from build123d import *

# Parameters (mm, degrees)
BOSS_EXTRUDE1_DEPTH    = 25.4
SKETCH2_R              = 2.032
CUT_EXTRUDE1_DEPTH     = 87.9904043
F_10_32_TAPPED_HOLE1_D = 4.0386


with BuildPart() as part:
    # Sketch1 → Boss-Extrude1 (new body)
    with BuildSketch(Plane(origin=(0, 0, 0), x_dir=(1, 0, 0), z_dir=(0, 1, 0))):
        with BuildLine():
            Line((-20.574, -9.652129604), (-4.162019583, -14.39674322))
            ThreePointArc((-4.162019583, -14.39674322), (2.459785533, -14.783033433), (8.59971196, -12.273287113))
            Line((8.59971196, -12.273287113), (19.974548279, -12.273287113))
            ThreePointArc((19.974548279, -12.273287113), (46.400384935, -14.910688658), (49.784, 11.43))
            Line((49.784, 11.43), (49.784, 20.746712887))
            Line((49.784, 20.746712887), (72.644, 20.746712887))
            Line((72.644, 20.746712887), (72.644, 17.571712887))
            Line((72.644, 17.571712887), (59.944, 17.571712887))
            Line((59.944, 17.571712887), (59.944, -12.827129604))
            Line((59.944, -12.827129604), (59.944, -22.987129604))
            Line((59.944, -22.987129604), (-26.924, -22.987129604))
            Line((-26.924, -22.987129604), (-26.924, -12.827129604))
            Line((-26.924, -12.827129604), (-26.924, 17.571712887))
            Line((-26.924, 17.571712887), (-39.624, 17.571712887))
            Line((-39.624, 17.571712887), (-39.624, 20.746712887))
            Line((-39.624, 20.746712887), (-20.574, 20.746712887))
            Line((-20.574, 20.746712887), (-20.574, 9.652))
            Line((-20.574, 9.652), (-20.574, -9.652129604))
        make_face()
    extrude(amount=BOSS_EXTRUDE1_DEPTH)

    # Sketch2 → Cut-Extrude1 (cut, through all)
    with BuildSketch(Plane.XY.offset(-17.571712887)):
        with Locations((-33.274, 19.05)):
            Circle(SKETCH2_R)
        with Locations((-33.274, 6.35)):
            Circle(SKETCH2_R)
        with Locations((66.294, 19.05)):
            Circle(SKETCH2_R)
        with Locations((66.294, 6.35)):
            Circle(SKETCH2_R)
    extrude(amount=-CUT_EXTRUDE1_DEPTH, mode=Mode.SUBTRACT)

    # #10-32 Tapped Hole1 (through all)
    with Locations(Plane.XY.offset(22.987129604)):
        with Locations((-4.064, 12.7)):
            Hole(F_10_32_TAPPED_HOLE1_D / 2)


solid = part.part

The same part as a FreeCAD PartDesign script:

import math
import FreeCAD as App
import Part
import Sketcher

V = App.Vector
Q = App.Units.Quantity

doc = App.newDocument("Part")
body = doc.addObject("PartDesign::Body", "Body")

# Sketch on XZ plane
sketch1 = body.newObject("Sketcher::SketchObject", "Sketch")
sketch1.AttachmentSupport = (doc.getObject("XZ_Plane"), [""])
sketch1.MapMode = "FlatFace"
sketch1.addGeometry(Part.LineSegment(V(-4.16202, 14.396743, 0), V(-20.574, 9.65213, 0)), False)
sketch1.addGeometry(Part.LineSegment(V(-20.574, 9.65213, 0), V(-20.574, -20.746713, 0)), False)
sketch1.addGeometry(Part.LineSegment(V(-20.574, -20.746713, 0), V(-39.624, -20.746713, 0)), False)
sketch1.addGeometry(Part.LineSegment(V(-39.624, -20.746713, 0), V(-39.624, -17.571713, 0)), False)
sketch1.addGeometry(Part.LineSegment(V(-39.624, -17.571713, 0), V(-26.924, -17.571713, 0)), False)
sketch1.addGeometry(Part.LineSegment(V(-26.924, -17.571713, 0), V(-26.924, 22.98713, 0)), False)
sketch1.addGeometry(Part.LineSegment(V(-26.924, 22.98713, 0), V(59.944, 22.98713, 0)), False)
sketch1.addGeometry(Part.LineSegment(V(59.944, 22.98713, 0), V(59.944, -17.571713, 0)), False)
sketch1.addGeometry(Part.LineSegment(V(59.944, -17.571713, 0), V(72.644, -17.571713, 0)), False)
sketch1.addGeometry(Part.LineSegment(V(72.644, -17.571713, 0), V(72.644, -20.746713, 0)), False)
sketch1.addGeometry(Part.LineSegment(V(72.644, -20.746713, 0), V(49.784, -20.746713, 0)), False)
sketch1.addGeometry(Part.LineSegment(V(49.784, -20.746713, 0), V(49.784, -11.43, 0)), False)
sketch1.addGeometry(Part.ArcOfCircle(Part.Circle(V(34.544, 0, 0), V(0, 0, 1), 19.05), math.radians(-36.869898), math.radians(139.889257)), False)
sketch1.addGeometry(Part.LineSegment(V(19.974548, 12.273287, 0), V(8.599712, 12.273287, 0)), False)
sketch1.addGeometry(Part.ArcOfCircle(Part.Circle(V(0, 0, 0), V(0, 0, 1), 14.986281), math.radians(54.981636), math.radians(106.124292)), False)
sketch1.addConstraint(Sketcher.Constraint("Coincident", 0, 2, 1, 1))
sketch1.addConstraint(Sketcher.Constraint("Coincident", 1, 2, 2, 1))
sketch1.addConstraint(Sketcher.Constraint("Coincident", 2, 2, 3, 1))
sketch1.addConstraint(Sketcher.Constraint("Coincident", 3, 2, 4, 1))
sketch1.addConstraint(Sketcher.Constraint("Coincident", 4, 2, 5, 1))
sketch1.addConstraint(Sketcher.Constraint("Coincident", 5, 2, 6, 1))
sketch1.addConstraint(Sketcher.Constraint("Coincident", 6, 2, 7, 1))
sketch1.addConstraint(Sketcher.Constraint("Coincident", 7, 2, 8, 1))
sketch1.addConstraint(Sketcher.Constraint("Coincident", 8, 2, 9, 1))
sketch1.addConstraint(Sketcher.Constraint("Coincident", 9, 2, 10, 1))
sketch1.addConstraint(Sketcher.Constraint("Coincident", 10, 2, 11, 1))
sketch1.addConstraint(Sketcher.Constraint("Coincident", 11, 2, 12, 1))
sketch1.addConstraint(Sketcher.Constraint("Coincident", 12, 2, 13, 1))
sketch1.addConstraint(Sketcher.Constraint("Coincident", 13, 2, 14, 1))
sketch1.addConstraint(Sketcher.Constraint("Tangent", 14, 2, 0, 1))
sketch1.addConstraint(Sketcher.Constraint("Vertical", 1))
sketch1.addConstraint(Sketcher.Constraint("Horizontal", 2))
sketch1.addConstraint(Sketcher.Constraint("Vertical", 3))
sketch1.addConstraint(Sketcher.Constraint("Horizontal", 4))
sketch1.addConstraint(Sketcher.Constraint("Vertical", 5))
sketch1.addConstraint(Sketcher.Constraint("Horizontal", 6))
sketch1.addConstraint(Sketcher.Constraint("Vertical", 7))
sketch1.addConstraint(Sketcher.Constraint("Horizontal", 8))
sketch1.addConstraint(Sketcher.Constraint("Vertical", 9))
sketch1.addConstraint(Sketcher.Constraint("Horizontal", 10))
sketch1.addConstraint(Sketcher.Constraint("Vertical", 11))
sketch1.addConstraint(Sketcher.Constraint("Horizontal", 13))
sketch1.addConstraint(Sketcher.Constraint("Coincident", 14, 3, -1, 1))
sketch1.addConstraint(Sketcher.Constraint("PointOnObject", 12, 3, -1))
sketch1.addConstraint(Sketcher.Constraint("Horizontal", 4, 2, 7, 2))
sketch1.addConstraint(Sketcher.Constraint("Horizontal", 2, 2, 9, 2))
sketch1.addConstraint(Sketcher.Constraint("Equal", 4, 8))
sketch1.addConstraint(Sketcher.Constraint("Radius", 12, Q("0.75 in")))
sketch1.addConstraint(Sketcher.Constraint("DistanceX", 4, 1, 4, 2, Q("0.5 in")))
sketch1.addConstraint(Sketcher.Constraint("DistanceX", 10, 2, 10, 1, Q("0.9 in")))
sketch1.addConstraint(Sketcher.Constraint("DistanceX", 12, 3, 6, 2, Q("1 in")))
sketch1.addConstraint(Sketcher.Constraint("DistanceX", 2, 2, 2, 1, Q("0.75 in")))
sketch1.addConstraint(Sketcher.Constraint("DistanceX", 6, 1, 6, 2, Q("3.42 in")))
sketch1.addConstraint(Sketcher.Constraint("DistanceY", 3, 1, 3, 2, Q("0.125 in")))
sketch1.addConstraint(Sketcher.Constraint("DistanceX", -1, 1, 12, 3, Q("1.36 in")))
sketch1.addConstraint(Sketcher.Constraint("Radius", 14, 14.986281))
sketch1.addConstraint(Sketcher.Constraint("DistanceY", 0, 2, 5, 2, Q("0.525 in")))
sketch1.addConstraint(Sketcher.Constraint("Distance", 0, Q("0.6726 in")))
sketch1.addConstraint(Sketcher.Constraint("DistanceX", 13, 2, 13, 1, 11.374836))
sketch1.addConstraint(Sketcher.Constraint("DistanceY", 1, 2, 1, 1, 30.398842))
pad1 = body.newObject("PartDesign::Pad", "Pad")
pad1.Profile = sketch1
pad1.Length = Q("1 in")
pad1.Reversed = True

# Sketch on XY plane
sketch2 = body.newObject("Sketcher::SketchObject", "Sketch001")
sketch2.AttachmentSupport = (doc.getObject("XY_Plane"), [""])
sketch2.MapMode = "FlatFace"
sketch2.AttachmentOffset = App.Placement(V(0, 0, -17.571713), App.Rotation())
sketch2.addGeometry(Part.Circle(V(-33.274, 19.05, 0), V(0, 0, 1), 2.032), False)
sketch2.addGeometry(Part.Circle(V(-33.274, 6.35, 0), V(0, 0, 1), 2.032), False)
sketch2.addGeometry(Part.Circle(V(66.294, 19.05, 0), V(0, 0, 1), 2.032), False)
sketch2.addGeometry(Part.Circle(V(66.294, 6.35, 0), V(0, 0, 1), 2.032), False)
sketch2.addConstraint(Sketcher.Constraint("Equal", 0, 1))
sketch2.addConstraint(Sketcher.Constraint("Equal", 1, 2))
sketch2.addConstraint(Sketcher.Constraint("Equal", 2, 3))
sketch2.addConstraint(Sketcher.Constraint("Horizontal", 0, 3, 2, 3))
sketch2.addConstraint(Sketcher.Constraint("Horizontal", 1, 3, 3, 3))
sketch2.addConstraint(Sketcher.Constraint("Vertical", 0, 3, 1, 3))
sketch2.addConstraint(Sketcher.Constraint("Vertical", 2, 3, 3, 3))
sketch2.addConstraint(Sketcher.Constraint("Diameter", 0, Q("0.16 in")))
sketch2.addConstraint(Sketcher.Constraint("DistanceY", 1, 3, 0, 3, Q("0.5 in")))
sketch2.addConstraint(Sketcher.Constraint("DistanceX", 0, 3, -1, 1, Q("1.31 in")))
sketch2.addConstraint(Sketcher.Constraint("DistanceY", -1, 1, 0, 3, Q("0.75 in")))
sketch2.addConstraint(Sketcher.Constraint("DistanceX", -1, 1, 2, 3, Q("2.61 in")))
pocket1 = body.newObject("PartDesign::Pocket", "Pocket")
pocket1.Profile = sketch2
pocket1.Type = "ThroughAll"

# Sketch on XY plane
sketch3 = body.newObject("Sketcher::SketchObject", "Sketch002")
sketch3.AttachmentSupport = (doc.getObject("XY_Plane"), [""])
sketch3.MapMode = "FlatFace"
sketch3.AttachmentOffset = App.Placement(V(0, 0, 22.98713), App.Rotation())
sketch3.addGeometry(Part.Circle(V(-4.064, 12.7, 0), V(0, 0, 1), 2.0193), False)
sketch3.addConstraint(Sketcher.Constraint("Diameter", 0, Q("0.159 in")))
sketch3.addConstraint(Sketcher.Constraint("DistanceY", -1, 1, 0, 3, Q("0.5 in")))
sketch3.addConstraint(Sketcher.Constraint("DistanceX", 0, 3, -1, 1, Q("0.16 in")))
doc.recompute()
hole = body.newObject("PartDesign::Hole", "Hole")
hole.Profile = sketch3
hole.ThreadType = "None"
hole.Diameter = Q("0.159 in")
hole.DepthType = "ThroughAll"

doc.recompute()
